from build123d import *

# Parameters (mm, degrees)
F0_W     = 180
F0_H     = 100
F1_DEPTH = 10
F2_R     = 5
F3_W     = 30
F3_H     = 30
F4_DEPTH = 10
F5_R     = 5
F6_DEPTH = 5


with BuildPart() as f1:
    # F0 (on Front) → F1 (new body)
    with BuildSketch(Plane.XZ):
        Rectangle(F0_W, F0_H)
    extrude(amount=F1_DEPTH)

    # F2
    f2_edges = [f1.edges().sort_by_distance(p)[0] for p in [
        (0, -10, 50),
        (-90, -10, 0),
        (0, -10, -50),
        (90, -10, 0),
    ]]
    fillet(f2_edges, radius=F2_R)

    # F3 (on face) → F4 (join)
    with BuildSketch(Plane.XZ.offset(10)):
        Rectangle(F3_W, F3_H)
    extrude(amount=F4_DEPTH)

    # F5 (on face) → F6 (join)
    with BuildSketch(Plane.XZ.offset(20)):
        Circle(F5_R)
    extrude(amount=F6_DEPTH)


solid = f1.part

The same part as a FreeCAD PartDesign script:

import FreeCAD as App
import Part
import Sketcher

V = App.Vector
Q = App.Units.Quantity


def edges_at(feature, points):
    """Names of the edges that pass closest to the given points."""
    edges = feature.Shape.Edges
    near = lambda p: min(range(len(edges)), key=lambda i: edges[i].distToShape(Part.Vertex(*p))[0])
    return sorted({f"Edge{near(p) + 1}" for p in points})

doc = App.newDocument("Part")
body = doc.addObject("PartDesign::Body", "Body")

sketch1 = body.newObject("Sketcher::SketchObject", "Sketch")
sketch1.AttachmentSupport = (doc.getObject("XZ_Plane"), [""])
sketch1.MapMode = "FlatFace"
sketch1.addGeometry([
    Part.LineSegment(V(-90, 50, 0), V(-90, -50, 0)),
    Part.LineSegment(V(-90, -50, 0), V(90, -50, 0)),
    Part.LineSegment(V(90, -50, 0), V(90, 50, 0)),
    Part.LineSegment(V(90, 50, 0), V(-90, 50, 0)),
], False)
sketch1.addConstraint([
    Sketcher.Constraint("Coincident", 0, 2, 1, 1),
    Sketcher.Constraint("Coincident", 1, 2, 2, 1),
    Sketcher.Constraint("Coincident", 2, 2, 3, 1),
    Sketcher.Constraint("Coincident", 3, 2, 0, 1),
    Sketcher.Constraint("Vertical", 0),
    Sketcher.Constraint("Horizontal", 1),
    Sketcher.Constraint("Vertical", 2),
    Sketcher.Constraint("Horizontal", 3),
    Sketcher.Constraint("Symmetric", 0, 2, 2, 2, -1, 1),
    Sketcher.Constraint("DistanceX", 1, 1, 1, 2, Q("180 mm")),
    Sketcher.Constraint("DistanceY", 0, 2, 0, 1, Q("100 mm")),
])
pad1 = body.newObject("PartDesign::Pad", "Pad")
pad1.Profile = sketch1
pad1.Length = 10
doc.recompute()

fillet = body.newObject("PartDesign::Fillet", "Fillet")
fillet.Base = (pad1, edges_at(pad1, [
    (0, -10, 50),
    (-90, -10, 0),
    (0, -10, -50),
    (90, -10, 0),
]))
fillet.Radius = 5

sketch2 = body.newObject("Sketcher::SketchObject", "Sketch001")
sketch2.AttachmentSupport = (doc.getObject("XZ_Plane"), [""])
sketch2.MapMode = "FlatFace"
sketch2.AttachmentOffset = App.Placement(V(0, 0, 10), App.Rotation())
sketch2.addGeometry([
    Part.LineSegment(V(-15, 15, 0), V(-15, -15, 0)),
    Part.LineSegment(V(-15, -15, 0), V(15, -15, 0)),
    Part.LineSegment(V(15, -15, 0), V(15, 15, 0)),
    Part.LineSegment(V(15, 15, 0), V(-15, 15, 0)),
], False)
sketch2.addConstraint([
    Sketcher.Constraint("Coincident", 0, 2, 1, 1),
    Sketcher.Constraint("Coincident", 1, 2, 2, 1),
    Sketcher.Constraint("Coincident", 2, 2, 3, 1),
    Sketcher.Constraint("Coincident", 3, 2, 0, 1),
    Sketcher.Constraint("Vertical", 0),
    Sketcher.Constraint("Horizontal", 1),
    Sketcher.Constraint("Vertical", 2),
    Sketcher.Constraint("Horizontal", 3),
    Sketcher.Constraint("Symmetric", 0, 2, 2, 2, -1, 1),
    Sketcher.Constraint("Equal", 3, 0),
    Sketcher.Constraint("DistanceX", 1, 1, 1, 2, Q("30 mm")),
])
pad2 = body.newObject("PartDesign::Pad", "Pad001")
pad2.Profile = sketch2
pad2.Length = 10

sketch3 = body.newObject("Sketcher::SketchObject", "Sketch002")
sketch3.AttachmentSupport = (doc.getObject("XZ_Plane"), [""])
sketch3.MapMode = "FlatFace"
sketch3.AttachmentOffset = App.Placement(V(0, 0, 20), App.Rotation())
sketch3.addGeometry(Part.Circle(V(0, 0, 0), V(0, 0, 1), 5), False)
sketch3.addConstraint([
    Sketcher.Constraint("Coincident", 0, 3, -1, 1),
    Sketcher.Constraint("Diameter", 0, Q("10 mm")),
])
pad3 = body.newObject("PartDesign::Pad", "Pad002")
pad3.Profile = sketch3
pad3.Length = 5

doc.recompute()
